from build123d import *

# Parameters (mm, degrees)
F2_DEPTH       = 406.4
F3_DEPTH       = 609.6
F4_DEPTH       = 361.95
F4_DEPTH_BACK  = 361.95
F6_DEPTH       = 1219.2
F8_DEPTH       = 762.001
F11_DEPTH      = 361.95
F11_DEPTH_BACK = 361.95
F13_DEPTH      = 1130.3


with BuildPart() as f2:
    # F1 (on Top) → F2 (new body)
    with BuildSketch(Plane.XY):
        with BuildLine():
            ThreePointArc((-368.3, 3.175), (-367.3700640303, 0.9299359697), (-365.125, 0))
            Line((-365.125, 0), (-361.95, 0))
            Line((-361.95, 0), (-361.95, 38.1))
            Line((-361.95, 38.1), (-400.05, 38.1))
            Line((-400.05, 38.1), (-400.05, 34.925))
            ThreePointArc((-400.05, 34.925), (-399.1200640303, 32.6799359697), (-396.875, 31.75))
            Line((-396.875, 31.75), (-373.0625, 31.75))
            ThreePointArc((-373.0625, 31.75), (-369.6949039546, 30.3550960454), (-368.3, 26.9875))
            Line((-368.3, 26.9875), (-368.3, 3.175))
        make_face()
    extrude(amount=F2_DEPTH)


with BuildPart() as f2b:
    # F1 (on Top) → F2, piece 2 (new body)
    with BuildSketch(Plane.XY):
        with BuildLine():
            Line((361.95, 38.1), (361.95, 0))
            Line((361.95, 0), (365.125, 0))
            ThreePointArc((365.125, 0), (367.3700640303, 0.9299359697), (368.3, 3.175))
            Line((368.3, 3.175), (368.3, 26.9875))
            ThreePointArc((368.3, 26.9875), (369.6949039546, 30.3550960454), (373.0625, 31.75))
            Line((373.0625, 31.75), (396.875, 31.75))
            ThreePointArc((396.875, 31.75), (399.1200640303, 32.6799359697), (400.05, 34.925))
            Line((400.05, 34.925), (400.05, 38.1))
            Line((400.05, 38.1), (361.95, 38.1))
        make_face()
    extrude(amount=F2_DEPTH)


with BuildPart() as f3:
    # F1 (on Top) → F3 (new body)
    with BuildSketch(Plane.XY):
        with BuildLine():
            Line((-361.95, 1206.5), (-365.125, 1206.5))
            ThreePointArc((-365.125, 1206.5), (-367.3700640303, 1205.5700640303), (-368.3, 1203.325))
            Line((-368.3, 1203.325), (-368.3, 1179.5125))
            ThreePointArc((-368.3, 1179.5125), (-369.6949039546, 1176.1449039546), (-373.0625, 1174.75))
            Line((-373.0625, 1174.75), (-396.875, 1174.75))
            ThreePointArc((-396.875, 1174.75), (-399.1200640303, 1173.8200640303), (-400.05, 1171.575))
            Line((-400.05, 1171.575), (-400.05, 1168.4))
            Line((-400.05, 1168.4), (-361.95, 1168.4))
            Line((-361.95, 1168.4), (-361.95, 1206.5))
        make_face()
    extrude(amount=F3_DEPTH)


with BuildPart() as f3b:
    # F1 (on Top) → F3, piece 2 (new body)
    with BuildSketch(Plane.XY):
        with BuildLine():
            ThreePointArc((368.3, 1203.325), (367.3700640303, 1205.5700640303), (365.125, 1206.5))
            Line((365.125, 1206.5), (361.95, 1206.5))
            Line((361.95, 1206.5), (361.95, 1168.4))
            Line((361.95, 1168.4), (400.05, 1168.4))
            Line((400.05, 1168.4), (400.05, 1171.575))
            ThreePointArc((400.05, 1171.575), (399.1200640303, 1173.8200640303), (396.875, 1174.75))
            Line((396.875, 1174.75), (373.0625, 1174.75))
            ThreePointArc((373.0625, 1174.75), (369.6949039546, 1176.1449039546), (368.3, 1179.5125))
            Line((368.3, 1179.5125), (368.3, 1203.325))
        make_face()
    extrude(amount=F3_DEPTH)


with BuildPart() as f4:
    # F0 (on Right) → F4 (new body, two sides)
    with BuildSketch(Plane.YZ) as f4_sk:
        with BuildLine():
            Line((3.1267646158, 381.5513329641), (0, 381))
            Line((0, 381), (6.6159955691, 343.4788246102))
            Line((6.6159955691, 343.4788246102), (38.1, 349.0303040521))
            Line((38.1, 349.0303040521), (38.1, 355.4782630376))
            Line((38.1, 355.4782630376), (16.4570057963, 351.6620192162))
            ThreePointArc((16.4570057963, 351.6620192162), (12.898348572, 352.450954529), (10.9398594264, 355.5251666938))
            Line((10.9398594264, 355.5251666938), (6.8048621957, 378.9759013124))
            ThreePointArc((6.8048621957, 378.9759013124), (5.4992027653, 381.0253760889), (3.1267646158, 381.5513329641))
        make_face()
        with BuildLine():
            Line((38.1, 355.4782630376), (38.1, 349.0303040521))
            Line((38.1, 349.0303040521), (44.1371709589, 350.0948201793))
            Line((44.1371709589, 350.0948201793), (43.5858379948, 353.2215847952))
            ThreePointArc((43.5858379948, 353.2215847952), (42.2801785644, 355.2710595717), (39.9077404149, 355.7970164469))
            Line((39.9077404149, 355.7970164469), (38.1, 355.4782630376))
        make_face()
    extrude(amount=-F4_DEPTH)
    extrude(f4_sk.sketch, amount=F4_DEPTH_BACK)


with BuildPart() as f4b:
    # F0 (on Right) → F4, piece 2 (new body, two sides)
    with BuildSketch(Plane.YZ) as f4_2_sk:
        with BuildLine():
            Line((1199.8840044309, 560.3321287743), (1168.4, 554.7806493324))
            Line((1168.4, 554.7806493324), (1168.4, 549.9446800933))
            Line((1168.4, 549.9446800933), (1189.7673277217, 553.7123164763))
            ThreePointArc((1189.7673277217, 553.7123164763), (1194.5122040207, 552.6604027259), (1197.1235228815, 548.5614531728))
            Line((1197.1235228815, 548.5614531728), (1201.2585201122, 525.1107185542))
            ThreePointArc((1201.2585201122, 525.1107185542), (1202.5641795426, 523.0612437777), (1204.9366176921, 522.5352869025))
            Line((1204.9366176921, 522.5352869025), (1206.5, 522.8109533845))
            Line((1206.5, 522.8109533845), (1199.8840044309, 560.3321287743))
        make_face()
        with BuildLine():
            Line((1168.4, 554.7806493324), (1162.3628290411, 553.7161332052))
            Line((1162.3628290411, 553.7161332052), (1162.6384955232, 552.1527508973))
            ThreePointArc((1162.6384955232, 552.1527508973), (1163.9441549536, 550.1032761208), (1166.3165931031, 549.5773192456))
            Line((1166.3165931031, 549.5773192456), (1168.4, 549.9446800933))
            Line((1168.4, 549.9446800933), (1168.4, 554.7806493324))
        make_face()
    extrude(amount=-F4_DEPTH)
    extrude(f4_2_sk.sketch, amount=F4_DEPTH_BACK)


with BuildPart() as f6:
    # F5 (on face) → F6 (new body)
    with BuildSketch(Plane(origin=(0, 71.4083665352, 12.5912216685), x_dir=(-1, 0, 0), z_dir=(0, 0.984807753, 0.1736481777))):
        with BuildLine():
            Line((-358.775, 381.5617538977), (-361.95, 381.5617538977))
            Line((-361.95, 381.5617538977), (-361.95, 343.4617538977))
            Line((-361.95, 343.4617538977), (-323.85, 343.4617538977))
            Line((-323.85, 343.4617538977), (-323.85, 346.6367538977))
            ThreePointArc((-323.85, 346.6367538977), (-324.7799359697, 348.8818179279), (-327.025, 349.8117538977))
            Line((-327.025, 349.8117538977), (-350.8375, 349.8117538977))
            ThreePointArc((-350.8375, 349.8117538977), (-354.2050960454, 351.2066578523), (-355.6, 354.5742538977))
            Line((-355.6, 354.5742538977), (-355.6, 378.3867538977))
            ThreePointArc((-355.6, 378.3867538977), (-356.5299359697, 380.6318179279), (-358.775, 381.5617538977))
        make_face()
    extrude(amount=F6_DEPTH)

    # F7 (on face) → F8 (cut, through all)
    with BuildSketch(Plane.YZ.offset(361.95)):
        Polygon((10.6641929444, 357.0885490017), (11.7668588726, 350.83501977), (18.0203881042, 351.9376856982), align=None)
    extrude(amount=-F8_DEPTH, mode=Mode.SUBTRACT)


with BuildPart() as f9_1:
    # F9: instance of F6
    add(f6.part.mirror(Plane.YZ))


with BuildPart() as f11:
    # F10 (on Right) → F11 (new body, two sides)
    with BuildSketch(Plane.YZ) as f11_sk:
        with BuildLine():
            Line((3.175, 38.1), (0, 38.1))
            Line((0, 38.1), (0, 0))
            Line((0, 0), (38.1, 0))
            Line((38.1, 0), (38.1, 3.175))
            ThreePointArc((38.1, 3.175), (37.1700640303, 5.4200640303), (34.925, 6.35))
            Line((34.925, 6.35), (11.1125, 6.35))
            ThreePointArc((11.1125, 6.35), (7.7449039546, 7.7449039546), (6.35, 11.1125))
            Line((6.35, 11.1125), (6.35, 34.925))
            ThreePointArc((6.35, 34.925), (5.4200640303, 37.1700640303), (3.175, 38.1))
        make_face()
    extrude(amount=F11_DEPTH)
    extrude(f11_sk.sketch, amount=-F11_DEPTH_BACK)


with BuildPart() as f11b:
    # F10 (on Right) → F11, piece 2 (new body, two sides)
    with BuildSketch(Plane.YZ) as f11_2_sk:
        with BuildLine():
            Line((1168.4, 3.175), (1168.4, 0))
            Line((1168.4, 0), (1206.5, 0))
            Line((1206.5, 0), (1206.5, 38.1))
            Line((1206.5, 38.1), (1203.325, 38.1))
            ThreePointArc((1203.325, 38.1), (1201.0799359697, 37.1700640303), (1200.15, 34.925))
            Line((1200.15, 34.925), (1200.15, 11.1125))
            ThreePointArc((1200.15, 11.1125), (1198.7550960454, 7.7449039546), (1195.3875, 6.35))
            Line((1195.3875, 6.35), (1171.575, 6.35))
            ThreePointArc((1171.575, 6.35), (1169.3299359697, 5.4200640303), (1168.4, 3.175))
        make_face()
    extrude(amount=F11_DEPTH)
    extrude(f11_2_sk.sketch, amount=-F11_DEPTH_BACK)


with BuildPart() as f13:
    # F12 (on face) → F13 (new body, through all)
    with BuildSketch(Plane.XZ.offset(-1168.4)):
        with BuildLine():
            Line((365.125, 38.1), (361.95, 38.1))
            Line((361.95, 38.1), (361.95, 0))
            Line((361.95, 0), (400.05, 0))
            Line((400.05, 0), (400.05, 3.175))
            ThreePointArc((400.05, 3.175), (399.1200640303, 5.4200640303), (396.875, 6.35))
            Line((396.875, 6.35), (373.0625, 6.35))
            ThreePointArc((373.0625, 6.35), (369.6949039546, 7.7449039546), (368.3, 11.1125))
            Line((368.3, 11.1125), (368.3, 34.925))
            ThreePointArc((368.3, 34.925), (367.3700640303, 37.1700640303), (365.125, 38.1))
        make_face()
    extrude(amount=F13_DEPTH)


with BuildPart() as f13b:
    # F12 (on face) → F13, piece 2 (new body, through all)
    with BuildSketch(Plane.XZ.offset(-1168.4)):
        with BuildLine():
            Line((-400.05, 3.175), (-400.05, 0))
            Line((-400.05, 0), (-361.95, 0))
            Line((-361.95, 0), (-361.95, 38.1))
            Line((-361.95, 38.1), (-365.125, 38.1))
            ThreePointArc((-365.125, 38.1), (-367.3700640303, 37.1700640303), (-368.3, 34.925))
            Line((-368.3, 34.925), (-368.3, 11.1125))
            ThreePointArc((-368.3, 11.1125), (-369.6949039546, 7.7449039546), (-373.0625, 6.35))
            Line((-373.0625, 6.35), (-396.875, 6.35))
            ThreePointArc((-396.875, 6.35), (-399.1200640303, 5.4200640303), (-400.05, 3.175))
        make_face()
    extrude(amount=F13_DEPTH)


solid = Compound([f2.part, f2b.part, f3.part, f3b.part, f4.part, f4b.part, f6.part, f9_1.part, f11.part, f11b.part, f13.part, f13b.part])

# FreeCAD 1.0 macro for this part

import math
import FreeCAD as App
import Part
import Sketcher

V = App.Vector
Q = App.Units.Quantity

doc = App.newDocument("Part")
body = doc.addObject("PartDesign::Body", "Body")

# Sketch on XY plane
sketch1 = doc.addObject("Sketcher::SketchObject", "Sketch")
body.addObject(sketch1)
sketch1.AttachmentSupport = (doc.XY_Plane, [""])
sketch1.MapMode = "FlatFace"
sketch1.addGeometry([
    Part.ArcOfCircle(Part.Circle(V(-365.125, 3.175, 0), V(0, 0, 1), 3.175), math.radians(180), math.radians(270)),  # 0
    Part.LineSegment(V(-365.125, 0, 0), V(-361.95, 0, 0)),  # 1
    Part.LineSegment(V(-361.95, 0, 0), V(-361.95, 38.1, 0)),  # 2
    Part.LineSegment(V(-361.95, 38.1, 0), V(-400.05, 38.1, 0)),  # 3
    Part.LineSegment(V(-400.05, 38.1, 0), V(-400.05, 34.925, 0)),  # 4
    Part.ArcOfCircle(Part.Circle(V(-396.875, 34.925, 0), V(0, 0, 1), 3.175), math.radians(180), math.radians(270)),  # 5
    Part.LineSegment(V(-396.875, 31.75, 0), V(-373.0625, 31.75, 0)),  # 6
    Part.ArcOfCircle(Part.Circle(V(-373.0625, 26.9875, 0), V(0, 0, 1), 4.7625), math.radians(0), math.radians(90)),  # 7
    Part.LineSegment(V(-368.3, 26.9875, 0), V(-368.3, 3.175, 0)),  # 8
], False)
sketch1.addConstraint([
    Sketcher.Constraint("Tangent", 0, 2, 1, 1),
    Sketcher.Constraint("Coincident", 1, 2, 2, 1),
    Sketcher.Constraint("Coincident", 2, 2, 3, 1),
    Sketcher.Constraint("Coincident", 3, 2, 4, 1),
    Sketcher.Constraint("Tangent", 4, 2, 5, 1),
    Sketcher.Constraint("Tangent", 5, 2, 6, 1),
    Sketcher.Constraint("Tangent", 6, 2, 7, 2),
    Sketcher.Constraint("Tangent", 7, 1, 8, 1),
    Sketcher.Constraint("Tangent", 8, 2, 0, 1),
    Sketcher.Constraint("Horizontal", 1),
    Sketcher.Constraint("Vertical", 2),
    Sketcher.Constraint("Horizontal", 3),
    Sketcher.Constraint("Vertical", 4),
    Sketcher.Constraint("Horizontal", 6),
    Sketcher.Constraint("Vertical", 8),
    Sketcher.Constraint("Equal", 0, 5),
    Sketcher.Constraint("PointOnObject", 0, 2, -1),
    Sketcher.Constraint("Equal", 3, 2),
    Sketcher.Constraint("Equal", 1, 4),
    Sketcher.Constraint("DistanceX", 3, 2, 3, 1, Q("1.5 in")),
    Sketcher.Constraint("Radius", 0, Q("0.125 in")),
    Sketcher.Constraint("Radius", 7, Q("0.1875 in")),
    Sketcher.Constraint("DistanceX", 7, 1, -1, 1, Q("14.5 in")),
    Sketcher.Constraint("DistanceX", 1, 1, 1, 2, Q("0.125 in")),
])
pad1 = doc.addObject("PartDesign::Pad", "Pad")
body.addObject(pad1)
pad1.Profile = sketch1
pad1.Length = Q("16 in")
body2 = doc.addObject("PartDesign::Body", "Body001")

# Sketch on XY plane
sketch2 = doc.addObject("Sketcher::SketchObject", "Sketch001")
body2.addObject(sketch2)
sketch2.AttachmentSupport = (doc.getObject("XY_Plane001"), [""])
sketch2.MapMode = "FlatFace"
sketch2.addGeometry([
    Part.LineSegment(V(361.95, 38.1, 0), V(361.95, 0, 0)),  # 0
    Part.LineSegment(V(361.95, 0, 0), V(365.125, 0, 0)),  # 1
    Part.ArcOfCircle(Part.Circle(V(365.125, 3.175, 0), V(0, 0, 1), 3.175), math.radians(-90), math.radians(0)),  # 2
    Part.LineSegment(V(368.3, 3.175, 0), V(368.3, 26.9875, 0)),  # 3
    Part.ArcOfCircle(Part.Circle(V(373.0625, 26.9875, 0), V(0, 0, 1), 4.7625), math.radians(90), math.radians(180)),  # 4
    Part.LineSegment(V(373.0625, 31.75, 0), V(396.875, 31.75, 0)),  # 5
    Part.ArcOfCircle(Part.Circle(V(396.875, 34.925, 0), V(0, 0, 1), 3.175), math.radians(-90), math.radians(0)),  # 6
    Part.LineSegment(V(400.05, 34.925, 0), V(400.05, 38.1, 0)),  # 7
    Part.LineSegment(V(400.05, 38.1, 0), V(361.95, 38.1, 0)),  # 8
], False)
sketch2.addConstraint([
    Sketcher.Constraint("Coincident", 0, 2, 1, 1),
    Sketcher.Constraint("Tangent", 1, 2, 2, 1),
    Sketcher.Constraint("Tangent", 2, 2, 3, 1),
    Sketcher.Constraint("Tangent", 3, 2, 4, 2),
    Sketcher.Constraint("Tangent", 4, 1, 5, 1),
    Sketcher.Constraint("Tangent", 5, 2, 6, 1),
    Sketcher.Constraint("Tangent", 6, 2, 7, 1),
    Sketcher.Constraint("Coincident", 7, 2, 8, 1),
    Sketcher.Constraint("Coincident", 8, 2, 0, 1),
    Sketcher.Constraint("Vertical", 0),
    Sketcher.Constraint("Horizontal", 1),
    Sketcher.Constraint("Vertical", 3),
    Sketcher.Constraint("Horizontal", 5),
    Sketcher.Constraint("Vertical", 7),
    Sketcher.Constraint("Horizontal", 8),
    Sketcher.Constraint("Equal", 2, 6),
    Sketcher.Constraint("PointOnObject", 0, 2, -1),
    Sketcher.Constraint("Equal", 8, 0),
    Sketcher.Constraint("Equal", 5, 3),
    Sketcher.Constraint("DistanceX", 8, 2, 8, 1, Q("1.5 in")),
    Sketcher.Constraint("Radius", 2, Q("0.125 in")),
    Sketcher.Constraint("Radius", 4, Q("0.1875 in")),
    Sketcher.Constraint("DistanceX", -1, 1, 2, 2, Q("14.5 in")),
    Sketcher.Constraint("DistanceX", 1, 1, 1, 2, Q("0.125 in")),
])
pad2 = doc.addObject("PartDesign::Pad", "Pad001")
body2.addObject(pad2)
pad2.Profile = sketch2
pad2.Length = Q("16 in")
body3 = doc.addObject("PartDesign::Body", "Body002")

# Sketch on XY plane
sketch3 = doc.addObject("Sketcher::SketchObject", "Sketch002")
body3.addObject(sketch3)
sketch3.AttachmentSupport = (doc.getObject("XY_Plane002"), [""])
sketch3.MapMode = "FlatFace"
sketch3.addGeometry([
    Part.LineSegment(V(-361.95, 1206.5, 0), V(-365.125, 1206.5, 0)),  # 0
    Part.ArcOfCircle(Part.Circle(V(-365.125, 1203.325, 0), V(0, 0, 1), 3.175), math.radians(90), math.radians(180)),  # 1
    Part.LineSegment(V(-368.3, 1203.325, 0), V(-368.3, 1179.5125, 0)),  # 2
    Part.ArcOfCircle(Part.Circle(V(-373.0625, 1179.5125, 0), V(0, 0, 1), 4.7625), math.radians(-90), math.radians(0)),  # 3
    Part.LineSegment(V(-373.0625, 1174.75, 0), V(-396.875, 1174.75, 0)),  # 4
    Part.ArcOfCircle(Part.Circle(V(-396.875, 1171.575, 0), V(0, 0, 1), 3.175), math.radians(90), math.radians(180)),  # 5
    Part.LineSegment(V(-400.05, 1171.575, 0), V(-400.05, 1168.4, 0)),  # 6
    Part.LineSegment(V(-400.05, 1168.4, 0), V(-361.95, 1168.4, 0)),  # 7
    Part.LineSegment(V(-361.95, 1168.4, 0), V(-361.95, 1206.5, 0)),  # 8
], False)
sketch3.addConstraint([
    Sketcher.Constraint("Tangent", 0, 2, 1, 1),
    Sketcher.Constraint("Tangent", 1, 2, 2, 1),
    Sketcher.Constraint("Tangent", 2, 2, 3, 2),
    Sketcher.Constraint("Tangent", 3, 1, 4, 1),
    Sketcher.Constraint("Tangent", 4, 2, 5, 1),
    Sketcher.Constraint("Tangent", 5, 2, 6, 1),
    Sketcher.Constraint("Coincident", 6, 2, 7, 1),
    Sketcher.Constraint("Coincident", 7, 2, 8, 1),
    Sketcher.Constraint("Coincident", 8, 2, 0, 1),
    Sketcher.Constraint("Horizontal", 0),
    Sketcher.Constraint("Vertical", 2),
    Sketcher.Constraint("Horizontal", 4),
    Sketcher.Constraint("Vertical", 6),
    Sketcher.Constraint("Horizontal", 7),
    Sketcher.Constraint("Vertical", 8),
    Sketcher.Constraint("Equal", 1, 5),
    Sketcher.Constraint("Equal", 4, 2),
    Sketcher.Constraint("Equal", 0, 6),
    Sketcher.Constraint("DistanceX", 7, 1, 7, 2, Q("1.5 in")),
    Sketcher.Constraint("DistanceY", -1, 1, 6, 2, Q("46 in")),
    Sketcher.Constraint("Radius", 1, Q("0.125 in")),
    Sketcher.Constraint("Radius", 3, Q("0.1875 in")),
    Sketcher.Constraint("DistanceX", 1, 2, -1, 1, Q("14.5 in")),
    Sketcher.Constraint("DistanceX", 0, 2, 0, 1, Q("0.125 in")),
])
pad3 = doc.addObject("PartDesign::Pad", "Pad002")
body3.addObject(pad3)
pad3.Profile = sketch3
pad3.Length = Q("24 in")
body4 = doc.addObject("PartDesign::Body", "Body003")

# Sketch on XY plane
sketch4 = doc.addObject("Sketcher::SketchObject", "Sketch003")
body4.addObject(sketch4)
sketch4.AttachmentSupport = (doc.getObject("XY_Plane003"), [""])
sketch4.MapMode = "FlatFace"
sketch4.addGeometry([
    Part.ArcOfCircle(Part.Circle(V(365.125, 1203.325, 0), V(0, 0, 1), 3.175), math.radians(0), math.radians(90)),  # 0
    Part.LineSegment(V(365.125, 1206.5, 0), V(361.95, 1206.5, 0)),  # 1
    Part.LineSegment(V(361.95, 1206.5, 0), V(361.95, 1168.4, 0)),  # 2
    Part.LineSegment(V(361.95, 1168.4, 0), V(400.05, 1168.4, 0)),  # 3
    Part.LineSegment(V(400.05, 1168.4, 0), V(400.05, 1171.575, 0)),  # 4
    Part.ArcOfCircle(Part.Circle(V(396.875, 1171.575, 0), V(0, 0, 1), 3.175), math.radians(0), math.radians(90)),  # 5
    Part.LineSegment(V(396.875, 1174.75, 0), V(373.0625, 1174.75, 0)),  # 6
    Part.ArcOfCircle(Part.Circle(V(373.0625, 1179.5125, 0), V(0, 0, 1), 4.7625), math.radians(180), math.radians(270)),  # 7
    Part.LineSegment(V(368.3, 1179.5125, 0), V(368.3, 1203.325, 0)),  # 8
], False)
sketch4.addConstraint([
    Sketcher.Constraint("Tangent", 0, 2, 1, 1),
    Sketcher.Constraint("Coincident", 1, 2, 2, 1),
    Sketcher.Constraint("Coincident", 2, 2, 3, 1),
    Sketcher.Constraint("Coincident", 3, 2, 4, 1),
    Sketcher.Constraint("Tangent", 4, 2, 5, 1),
    Sketcher.Constraint("Tangent", 5, 2, 6, 1),
    Sketcher.Constraint("Tangent", 6, 2, 7, 2),
    Sketcher.Constraint("Tangent", 7, 1, 8, 1),
    Sketcher.Constraint("Tangent", 8, 2, 0, 1),
    Sketcher.Constraint("Horizontal", 1),
    Sketcher.Constraint("Vertical", 2),
    Sketcher.Constraint("Horizontal", 3),
    Sketcher.Constraint("Vertical", 4),
    Sketcher.Constraint("Horizontal", 6),
    Sketcher.Constraint("Vertical", 8),
    Sketcher.Constraint("Equal", 0, 5),
    Sketcher.Constraint("Equal", 3, 2),
    Sketcher.Constraint("Equal", 1, 4),
    Sketcher.Constraint("DistanceX", 3, 1, 3, 2, Q("1.5 in")),
    Sketcher.Constraint("DistanceY", -1, 1, 2, 2, Q("46 in")),
    Sketcher.Constraint("Radius", 0, Q("0.125 in")),
    Sketcher.Constraint("Radius", 7, Q("0.1875 in")),
    Sketcher.Constraint("DistanceX", -1, 1, 7, 1, Q("14.5 in")),
    Sketcher.Constraint("DistanceX", 1, 2, 1, 1, Q("0.125 in")),
])
pad4 = doc.addObject("PartDesign::Pad", "Pad003")
body4.addObject(pad4)
pad4.Profile = sketch4
pad4.Length = Q("24 in")
body5 = doc.addObject("PartDesign::Body", "Body004")

# Sketch on YZ plane
sketch5 = doc.addObject("Sketcher::SketchObject", "Sketch004")
body5.addObject(sketch5)
sketch5.AttachmentSupport = (doc.getObject("YZ_Plane004"), [""])
sketch5.MapMode = "FlatFace"
sketch5.addGeometry([
    Part.LineSegment(V(3.126765, 381.551333, 0), V(0, 381, 0)),  # 0
    Part.LineSegment(V(0, 381, 0), V(6.615996, 343.478825, 0)),  # 1
    Part.LineSegment(V(6.615996, 343.478825, 0), V(44.137171, 350.09482, 0)),  # 2
    Part.LineSegment(V(44.137171, 350.09482, 0), V(43.585838, 353.221585, 0)),  # 3
    Part.ArcOfCircle(Part.Circle(V(40.459073, 352.670252, 0), V(0, 0, 1), 3.175), math.radians(10), math.radians(100)),  # 4
    Part.LineSegment(V(39.90774, 355.797016, 0), V(38.1, 355.478263, 0)),  # 5
    Part.LineSegment(V(38.1, 355.478263, 0), V(16.457006, 351.662019, 0)),  # 6
    Part.ArcOfCircle(Part.Circle(V(15.630006, 356.352166, 0), V(0, 0, 1), 4.7625), math.radians(-170), math.radians(-80)),  # 7
    Part.LineSegment(V(10.939859, 355.525167, 0), V(6.804862, 378.975901, 0)),  # 8
    Part.ArcOfCircle(Part.Circle(V(3.678098, 378.424568, 0), V(0, 0, 1), 3.175), math.radians(10), math.radians(100)),  # 9
], False)
sketch5.addConstraint([
    Sketcher.Constraint("Coincident", 0, 2, 1, 1),
    Sketcher.Constraint("Coincident", 1, 2, 2, 1),
    Sketcher.Constraint("Coincident", 2, 2, 3, 1),
    Sketcher.Constraint("Tangent", 3, 2, 4, 1),
    Sketcher.Constraint("Tangent", 4, 2, 5, 1),
    Sketcher.Constraint("Coincident", 5, 2, 6, 1),
    Sketcher.Constraint("Tangent", 6, 2, 7, 2),
    Sketcher.Constraint("Tangent", 7, 1, 8, 1),
    Sketcher.Constraint("Tangent", 8, 2, 9, 1),
    Sketcher.Constraint("Tangent", 9, 2, 0, 1),
    Sketcher.Constraint("Equal", 4, 9),
    Sketcher.Constraint("PointOnObject", 0, 2, -2),
    Sketcher.Constraint("Perpendicular", 0, 1),
    Sketcher.Constraint("Perpendicular", 1, 2),
    Sketcher.Constraint("Perpendicular", 2, 3),
    Sketcher.Constraint("Perpendicular", 3, 5),
    Sketcher.Constraint("Parallel", 5, 6),
    Sketcher.Constraint("Perpendicular", 6, 8),
    Sketcher.Constraint("Equal", 1, 2),
    Sketcher.Constraint("Equal", 0, 3),
    Sketcher.Constraint("DistanceY", -1, 1, 0, 2, Q("15 in")),
    Sketcher.Constraint("Angle", 0, Q("-170 deg")),
    Sketcher.Constraint("Radius", 4, Q("0.125 in")),
    Sketcher.Constraint("Radius", 7, Q("0.1875 in")),
    Sketcher.Constraint("Distance", 1, Q("1.5 in")),
    Sketcher.Constraint("DistanceX", -1, 1, 5, 2, Q("1.5 in")),
    Sketcher.Constraint("Distance", 0, Q("0.125 in")),
])
pad5 = doc.addObject("PartDesign::Pad", "Pad004")
body5.addObject(pad5)
pad5.Profile = sketch5
pad5.Type = "TwoLengths"
pad5.Length = Q("14.25 in")
pad5.Length2 = Q("14.25 in")
pad5.Reversed = True
body6 = doc.addObject("PartDesign::Body", "Body005")

# Sketch on YZ plane
sketch6 = doc.addObject("Sketcher::SketchObject", "Sketch005")
body6.addObject(sketch6)
sketch6.AttachmentSupport = (doc.getObject("YZ_Plane005"), [""])
sketch6.MapMode = "FlatFace"
sketch6.addGeometry([
    Part.LineSegment(V(1199.884004, 560.332129, 0), V(1162.362829, 553.716133, 0)),  # 0
    Part.LineSegment(V(1162.362829, 553.716133, 0), V(1162.638496, 552.152751, 0)),  # 1
    Part.ArcOfCircle(Part.Circle(V(1165.76526, 552.704084, 0), V(0, 0, 1), 3.175), math.radians(-170), math.radians(-80)),  # 2
    Part.LineSegment(V(1166.316593, 549.577319, 0), V(1168.4, 549.94468, 0)),  # 3
    Part.LineSegment(V(1168.4, 549.94468, 0), V(1189.767328, 553.712316, 0)),  # 4
    Part.ArcOfCircle(Part.Circle(V(1190.869994, 547.458787, 0), V(0, 0, 1), 6.35), math.radians(10), math.radians(100)),  # 5
    Part.LineSegment(V(1197.123523, 548.561453, 0), V(1201.25852, 525.110719, 0)),  # 6
    Part.ArcOfCircle(Part.Circle(V(1204.385285, 525.662052, 0), V(0, 0, 1), 3.175), math.radians(-170), math.radians(-80)),  # 7
    Part.LineSegment(V(1204.936618, 522.535287, 0), V(1206.5, 522.810953, 0)),  # 8
    Part.LineSegment(V(1206.5, 522.810953, 0), V(1199.884004, 560.332129, 0)),  # 9
], False)
sketch6.addConstraint([
    Sketcher.Constraint("Coincident", 0, 2, 1, 1),
    Sketcher.Constraint("Tangent", 1, 2, 2, 1),
    Sketcher.Constraint("Tangent", 2, 2, 3, 1),
    Sketcher.Constraint("Coincident", 3, 2, 4, 1),
    Sketcher.Constraint("Tangent", 4, 2, 5, 2),
    Sketcher.Constraint("Tangent", 5, 1, 6, 1),
    Sketcher.Constraint("Tangent", 6, 2, 7, 1),
    Sketcher.Constraint("Tangent", 7, 2, 8, 1),
    Sketcher.Constraint("Coincident", 8, 2, 9, 1),
    Sketcher.Constraint("Coincident", 9, 2, 0, 1),
    Sketcher.Constraint("Equal", 2, 7),
    Sketcher.Constraint("Perpendicular", 0, 1),
    Sketcher.Constraint("Perpendicular", 1, 3),
    Sketcher.Constraint("Parallel", 3, 4),
    Sketcher.Constraint("Perpendicular", 4, 6),
    Sketcher.Constraint("Perpendicular", 6, 8),
    Sketcher.Constraint("Perpendicular", 8, 9),
    Sketcher.Constraint("Equal", 1, 8),
    Sketcher.Constraint("Equal", 0, 9),
    Sketcher.Constraint("Radius", 5, Q("0.25 in")),
    Sketcher.Constraint("DistanceX", -1, 1, 3, 2, Q("46 in")),
    Sketcher.Constraint("Angle", 0, Q("-170 deg")),
    Sketcher.Constraint("Radius", 2, Q("0.125 in")),
    Sketcher.Constraint("Distance", 0, Q("1.5 in")),
    Sketcher.Constraint("DistanceX", -1, 1, 8, 2, Q("47.5 in")),
    Sketcher.Constraint("Distance", 1, Q("0.0625 in")),
    Sketcher.Constraint("DistanceY", -1, 1, 7, 3, 525.662052),
])
pad6 = doc.addObject("PartDesign::Pad", "Pad005")
body6.addObject(pad6)
pad6.Profile = sketch6
pad6.Type = "TwoLengths"
pad6.Length = Q("14.25 in")
pad6.Length2 = Q("14.25 in")
pad6.Reversed = True
body7 = doc.addObject("PartDesign::Body", "Body006")

# Sketch on an angled plane
sketch7 = doc.addObject("Sketcher::SketchObject", "Sketch006")
body7.addObject(sketch7)
sketch7.Placement = App.Placement(V(0, 71.408367, 12.591222), App.Rotation(V(-1, 0, 0), V(0, -0.173648178, 0.984807753), V(0, 0.984807753, 0.173648178), "ZXY"))
sketch7.addGeometry([
    Part.LineSegment(V(-358.775, 381.561754, 0), V(-361.95, 381.561754, 0)),  # 0
    Part.LineSegment(V(-361.95, 381.561754, 0), V(-361.95, 343.461754, 0)),  # 1
    Part.LineSegment(V(-361.95, 343.461754, 0), V(-323.85, 343.461754, 0)),  # 2
    Part.LineSegment(V(-323.85, 343.461754, 0), V(-323.85, 346.636754, 0)),  # 3
    Part.ArcOfCircle(Part.Circle(V(-327.025, 346.636754, 0), V(0, 0, 1), 3.175), math.radians(0), math.radians(90)),  # 4
    Part.LineSegment(V(-327.025, 349.811754, 0), V(-350.8375, 349.811754, 0)),  # 5
    Part.ArcOfCircle(Part.Circle(V(-350.8375, 354.574254, 0), V(0, 0, 1), 4.7625), math.radians(180), math.radians(270)),  # 6
    Part.LineSegment(V(-355.6, 354.574254, 0), V(-355.6, 378.386754, 0)),  # 7
    Part.ArcOfCircle(Part.Circle(V(-358.775, 378.386754, 0), V(0, 0, 1), 3.175), math.radians(0), math.radians(90)),  # 8
], False)
sketch7.addConstraint([
    Sketcher.Constraint("Coincident", 0, 2, 1, 1),
    Sketcher.Constraint("Coincident", 1, 2, 2, 1),
    Sketcher.Constraint("Coincident", 2, 2, 3, 1),
    Sketcher.Constraint("Tangent", 3, 2, 4, 1),
    Sketcher.Constraint("Tangent", 4, 2, 5, 1),
    Sketcher.Constraint("Tangent", 5, 2, 6, 2),
    Sketcher.Constraint("Tangent", 6, 1, 7, 1),
    Sketcher.Constraint("Tangent", 7, 2, 8, 1),
    Sketcher.Constraint("Tangent", 8, 2, 0, 1),
    Sketcher.Constraint("Horizontal", 0),
    Sketcher.Constraint("Vertical", 1),
    Sketcher.Constraint("Horizontal", 2),
    Sketcher.Constraint("Vertical", 3),
    Sketcher.Constraint("Horizontal", 5),
    Sketcher.Constraint("Vertical", 7),
    Sketcher.Constraint("Equal", 4, 8),
    Sketcher.Constraint("Equal", 2, 1),
    Sketcher.Constraint("Equal", 0, 3),
    Sketcher.Constraint("DistanceX", 2, 1, 2, 2, Q("1.5 in")),
    Sketcher.Constraint("DistanceX", 6, 1, -1, 1, Q("14 in")),
    Sketcher.Constraint("Radius", 4, Q("0.125 in")),
    Sketcher.Constraint("Radius", 6, Q("0.1875 in")),
    Sketcher.Constraint("DistanceX", 0, 2, 0, 1, Q("0.125 in")),
    Sketcher.Constraint("DistanceY", -1, 1, 4, 3, 346.636754),
])
pad7 = doc.addObject("PartDesign::Pad", "Pad006")
body7.addObject(pad7)
pad7.Profile = sketch7
pad7.Length = Q("48 in")

# Sketch on YZ plane
sketch8 = doc.addObject("Sketcher::SketchObject", "Sketch007")
body7.addObject(sketch8)
sketch8.AttachmentSupport = (doc.getObject("YZ_Plane006"), [""])
sketch8.MapMode = "FlatFace"
sketch8.AttachmentOffset = App.Placement(V(0, 0, 14.25 * 25.4), App.Rotation())
sketch8.addGeometry([
    Part.LineSegment(V(10.664193, 357.088549, 0), V(11.766859, 350.83502, 0)),
    Part.LineSegment(V(11.766859, 350.83502, 0), V(18.020388, 351.937686, 0)),
    Part.LineSegment(V(18.020388, 351.937686, 0), V(10.664193, 357.088549, 0)),
], False)
sketch8.addConstraint([
    Sketcher.Constraint("Coincident", 0, 2, 1, 1),
    Sketcher.Constraint("Coincident", 1, 2, 2, 1),
    Sketcher.Constraint("Coincident", 2, 2, 0, 1),
    Sketcher.Constraint("Perpendicular", 0, 1),
    Sketcher.Constraint("Equal", 0, 1),
    Sketcher.Constraint("Angle", 0, Q("-80 deg")),
    Sketcher.Constraint("Distance", 0, Q("0.25 in")),
    Sketcher.Constraint("DistanceX", -1, 1, 0, 2, 11.766859),
    Sketcher.Constraint("DistanceY", -1, 1, 0, 2, 350.83502),
])
pocket1 = doc.addObject("PartDesign::Pocket", "Pocket")
body7.addObject(pocket1)
pocket1.Profile = sketch8
pocket1.Type = "ThroughAll"
body8 = doc.addObject("PartDesign::Body", "Body007")
doc.recompute()

mirroring = doc.addObject("Part::Mirroring", "Mirroring")
mirroring.Source = body7
mirroring.Base = V(0, 0, 0)
mirroring.Normal = V(1, 0, 0)
body8.BaseFeature = mirroring
doc.recompute()
body9 = doc.addObject("PartDesign::Body", "Body008")

# Sketch on YZ plane
sketch9 = doc.addObject("Sketcher::SketchObject", "Sketch008")
body9.addObject(sketch9)
sketch9.AttachmentSupport = (doc.getObject("YZ_Plane008"), [""])
sketch9.MapMode = "FlatFace"
sketch9.addGeometry([
    Part.LineSegment(V(3.175, 38.1, 0), V(0, 38.1, 0)),  # 0
    Part.LineSegment(V(0, 38.1, 0), V(0, 0, 0)),  # 1
    Part.LineSegment(V(0, 0, 0), V(38.1, 0, 0)),  # 2
    Part.LineSegment(V(38.1, 0, 0), V(38.1, 3.175, 0)),  # 3
    Part.ArcOfCircle(Part.Circle(V(34.925, 3.175, 0), V(0, 0, 1), 3.175), math.radians(0), math.radians(90)),  # 4
    Part.LineSegment(V(34.925, 6.35, 0), V(11.1125, 6.35, 0)),  # 5
    Part.ArcOfCircle(Part.Circle(V(11.1125, 11.1125, 0), V(0, 0, 1), 4.7625), math.radians(180), math.radians(270)),  # 6
    Part.LineSegment(V(6.35, 11.1125, 0), V(6.35, 34.925, 0)),  # 7
    Part.ArcOfCircle(Part.Circle(V(3.175, 34.925, 0), V(0, 0, 1), 3.175), math.radians(0), math.radians(90)),  # 8
], False)
sketch9.addConstraint([
    Sketcher.Constraint("Coincident", 0, 2, 1, 1),
    Sketcher.Constraint("Coincident", 1, 2, 2, 1),
    Sketcher.Constraint("Coincident", 2, 2, 3, 1),
    Sketcher.Constraint("Tangent", 3, 2, 4, 1),
    Sketcher.Constraint("Tangent", 4, 2, 5, 1),
    Sketcher.Constraint("Tangent", 5, 2, 6, 2),
    Sketcher.Constraint("Tangent", 6, 1, 7, 1),
    Sketcher.Constraint("Tangent", 7, 2, 8, 1),
    Sketcher.Constraint("Tangent", 8, 2, 0, 1),
    Sketcher.Constraint("Horizontal", 0),
    Sketcher.Constraint("Vertical", 1),
    Sketcher.Constraint("Horizontal", 2),
    Sketcher.Constraint("Vertical", 3),
    Sketcher.Constraint("Horizontal", 5),
    Sketcher.Constraint("Vertical", 7),
    Sketcher.Constraint("Coincident", 1, 2, -1, 1),
    Sketcher.Constraint("Equal", 4, 8),
    Sketcher.Constraint("Equal", 2, 1),
    Sketcher.Constraint("Equal", 0, 3),
    Sketcher.Constraint("DistanceX", 2, 1, 2, 2, Q("1.5 in")),
    Sketcher.Constraint("Radius", 4, Q("0.125 in")),
    Sketcher.Constraint("Radius", 6, Q("0.1875 in")),
    Sketcher.Constraint("DistanceX", 0, 2, 0, 1, Q("0.125 in")),
])
pad8 = doc.addObject("PartDesign::Pad", "Pad007")
body9.addObject(pad8)
pad8.Profile = sketch9
pad8.Type = "TwoLengths"
pad8.Length = Q("14.25 in")
pad8.Length2 = Q("14.25 in")
body10 = doc.addObject("PartDesign::Body", "Body009")

# Sketch on YZ plane
sketch10 = doc.addObject("Sketcher::SketchObject", "Sketch009")
body10.addObject(sketch10)
sketch10.AttachmentSupport = (doc.getObject("YZ_Plane009"), [""])
sketch10.MapMode = "FlatFace"
sketch10.addGeometry([
    Part.LineSegment(V(1168.4, 3.175, 0), V(1168.4, 0, 0)),  # 0
    Part.LineSegment(V(1168.4, 0, 0), V(1206.5, 0, 0)),  # 1
    Part.LineSegment(V(1206.5, 0, 0), V(1206.5, 38.1, 0)),  # 2
    Part.LineSegment(V(1206.5, 38.1, 0), V(1203.325, 38.1, 0)),  # 3
    Part.ArcOfCircle(Part.Circle(V(1203.325, 34.925, 0), V(0, 0, 1), 3.175), math.radians(90), math.radians(180)),  # 4
    Part.LineSegment(V(1200.15, 34.925, 0), V(1200.15, 11.1125, 0)),  # 5
    Part.ArcOfCircle(Part.Circle(V(1195.3875, 11.1125, 0), V(0, 0, 1), 4.7625), math.radians(-90), math.radians(0)),  # 6
    Part.LineSegment(V(1195.3875, 6.35, 0), V(1171.575, 6.35, 0)),  # 7
    Part.ArcOfCircle(Part.Circle(V(1171.575, 3.175, 0), V(0, 0, 1), 3.175), math.radians(90), math.radians(180)),  # 8
], False)
sketch10.addConstraint([
    Sketcher.Constraint("Coincident", 0, 2, 1, 1),
    Sketcher.Constraint("Coincident", 1, 2, 2, 1),
    Sketcher.Constraint("Coincident", 2, 2, 3, 1),
    Sketcher.Constraint("Tangent", 3, 2, 4, 1),
    Sketcher.Constraint("Tangent", 4, 2, 5, 1),
    Sketcher.Constraint("Tangent", 5, 2, 6, 2),
    Sketcher.Constraint("Tangent", 6, 1, 7, 1),
    Sketcher.Constraint("Tangent", 7, 2, 8, 1),
    Sketcher.Constraint("Tangent", 8, 2, 0, 1),
    Sketcher.Constraint("Vertical", 0),
    Sketcher.Constraint("Horizontal", 1),
    Sketcher.Constraint("Vertical", 2),
    Sketcher.Constraint("Horizontal", 3),
    Sketcher.Constraint("Vertical", 5),
    Sketcher.Constraint("Horizontal", 7),
    Sketcher.Constraint("Equal", 4, 8),
    Sketcher.Constraint("PointOnObject", 0, 2, -1),
    Sketcher.Constraint("Equal", 3, 0),
    Sketcher.Constraint("Equal", 1, 2),
    Sketcher.Constraint("DistanceX", 1, 1, 1, 2, Q("1.5 in")),
    Sketcher.Constraint("DistanceX", -1, 1, 0, 2, Q("46 in")),
    Sketcher.Constraint("Radius", 4, Q("0.125 in")),
    Sketcher.Constraint("Radius", 6, Q("0.1875 in")),
    Sketcher.Constraint("DistanceX", 3, 2, 3, 1, Q("0.125 in")),
])
pad9 = doc.addObject("PartDesign::Pad", "Pad008")
body10.addObject(pad9)
pad9.Profile = sketch10
pad9.Type = "TwoLengths"
pad9.Length = Q("14.25 in")
pad9.Length2 = Q("14.25 in")
body11 = doc.addObject("PartDesign::Body", "Body010")

# Sketch on XZ plane
sketch11 = doc.addObject("Sketcher::SketchObject", "Sketch010")
body11.addObject(sketch11)
sketch11.AttachmentSupport = (doc.getObject("XZ_Plane010"), [""])
sketch11.MapMode = "FlatFace"
sketch11.AttachmentOffset = App.Placement(V(0, 0, -46 * 25.4), App.Rotation())
sketch11.addGeometry([
    Part.LineSegment(V(365.125, 38.1, 0), V(361.95, 38.1, 0)),  # 0
    Part.LineSegment(V(361.95, 38.1, 0), V(361.95, 0, 0)),  # 1
    Part.LineSegment(V(361.95, 0, 0), V(400.05, 0, 0)),  # 2
    Part.LineSegment(V(400.05, 0, 0), V(400.05, 3.175, 0)),  # 3
    Part.ArcOfCircle(Part.Circle(V(396.875, 3.175, 0), V(0, 0, 1), 3.175), math.radians(0), math.radians(90)),  # 4
    Part.LineSegment(V(396.875, 6.35, 0), V(373.0625, 6.35, 0)),  # 5
    Part.ArcOfCircle(Part.Circle(V(373.0625, 11.1125, 0), V(0, 0, 1), 4.7625), math.radians(180), math.radians(270)),  # 6
    Part.LineSegment(V(368.3, 11.1125, 0), V(368.3, 34.925, 0)),  # 7
    Part.ArcOfCircle(Part.Circle(V(365.125, 34.925, 0), V(0, 0, 1), 3.175), math.radians(0), math.radians(90)),  # 8
], False)
sketch11.addConstraint([
    Sketcher.Constraint("Coincident", 0, 2, 1, 1),
    Sketcher.Constraint("Coincident", 1, 2, 2, 1),
    Sketcher.Constraint("Coincident", 2, 2, 3, 1),
    Sketcher.Constraint("Tangent", 3, 2, 4, 1),
    Sketcher.Constraint("Tangent", 4, 2, 5, 1),
    Sketcher.Constraint("Tangent", 5, 2, 6, 2),
    Sketcher.Constraint("Tangent", 6, 1, 7, 1),
    Sketcher.Constraint("Tangent", 7, 2, 8, 1),
    Sketcher.Constraint("Tangent", 8, 2, 0, 1),
    Sketcher.Constraint("Horizontal", 0),
    Sketcher.Constraint("Vertical", 1),
    Sketcher.Constraint("Horizontal", 2),
    Sketcher.Constraint("Vertical", 3),
    Sketcher.Constraint("Horizontal", 5),
    Sketcher.Constraint("Vertical", 7),
    Sketcher.Constraint("Equal", 4, 8),
    Sketcher.Constraint("PointOnObject", 1, 2, -1),
    Sketcher.Constraint("Equal", 2, 1),
    Sketcher.Constraint("Equal", 0, 3),
    Sketcher.Constraint("DistanceX", 2, 1, 2, 2, Q("1.5 in")),
    Sketcher.Constraint("Radius", 4, Q("0.125 in")),
    Sketcher.Constraint("Radius", 6, Q("0.1875 in")),
    Sketcher.Constraint("DistanceX", -1, 1, 6, 1, Q("14.5 in")),
    Sketcher.Constraint("DistanceX", 0, 2, 0, 1, Q("0.125 in")),
])
pad10 = doc.addObject("PartDesign::Pad", "Pad009")
body11.addObject(pad10)
pad10.Profile = sketch11
pad10.Length = Q("44.5 in")
body12 = doc.addObject("PartDesign::Body", "Body011")

# Sketch on XZ plane
sketch12 = doc.addObject("Sketcher::SketchObject", "Sketch011")
body12.addObject(sketch12)
sketch12.AttachmentSupport = (doc.getObject("XZ_Plane011"), [""])
sketch12.MapMode = "FlatFace"
sketch12.AttachmentOffset = App.Placement(V(0, 0, -46 * 25.4), App.Rotation())
sketch12.addGeometry([
    Part.LineSegment(V(-400.05, 3.175, 0), V(-400.05, 0, 0)),  # 0
    Part.LineSegment(V(-400.05, 0, 0), V(-361.95, 0, 0)),  # 1
    Part.LineSegment(V(-361.95, 0, 0), V(-361.95, 38.1, 0)),  # 2
    Part.LineSegment(V(-361.95, 38.1, 0), V(-365.125, 38.1, 0)),  # 3
    Part.ArcOfCircle(Part.Circle(V(-365.125, 34.925, 0), V(0, 0, 1), 3.175), math.radians(90), math.radians(180)),  # 4
    Part.LineSegment(V(-368.3, 34.925, 0), V(-368.3, 11.1125, 0)),  # 5
    Part.ArcOfCircle(Part.Circle(V(-373.0625, 11.1125, 0), V(0, 0, 1), 4.7625), math.radians(-90), math.radians(0)),  # 6
    Part.LineSegment(V(-373.0625, 6.35, 0), V(-396.875, 6.35, 0)),  # 7
    Part.ArcOfCircle(Part.Circle(V(-396.875, 3.175, 0), V(0, 0, 1), 3.175), math.radians(90), math.radians(180)),  # 8
], False)
sketch12.addConstraint([
    Sketcher.Constraint("Coincident", 0, 2, 1, 1),
    Sketcher.Constraint("Coincident", 1, 2, 2, 1),
    Sketcher.Constraint("Coincident", 2, 2, 3, 1),
    Sketcher.Constraint("Tangent", 3, 2, 4, 1),
    Sketcher.Constraint("Tangent", 4, 2, 5, 1),
    Sketcher.Constraint("Tangent", 5, 2, 6, 2),
    Sketcher.Constraint("Tangent", 6, 1, 7, 1),
    Sketcher.Constraint("Tangent", 7, 2, 8, 1),
    Sketcher.Constraint("Tangent", 8, 2, 0, 1),
    Sketcher.Constraint("Vertical", 0),
    Sketcher.Constraint("Horizontal", 1),
    Sketcher.Constraint("Vertical", 2),
    Sketcher.Constraint("Horizontal", 3),
    Sketcher.Constraint("Vertical", 5),
    Sketcher.Constraint("Horizontal", 7),
    Sketcher.Constraint("Equal", 4, 8),
    Sketcher.Constraint("PointOnObject", 0, 2, -1),
    Sketcher.Constraint("Equal", 3, 0),
    Sketcher.Constraint("Equal", 1, 2),
    Sketcher.Constraint("DistanceX", 1, 1, 1, 2, Q("1.5 in")),
    Sketcher.Constraint("Radius", 4, Q("0.125 in")),
    Sketcher.Constraint("Radius", 6, Q("0.1875 in")),
    Sketcher.Constraint("DistanceX", 4, 2, -1, 1, Q("14.5 in")),
    Sketcher.Constraint("DistanceX", 3, 2, 3, 1, Q("0.125 in")),
])
pad11 = doc.addObject("PartDesign::Pad", "Pad010")
body12.addObject(pad11)
pad11.Profile = sketch12
pad11.Length = Q("44.5 in")
mirroring.Visibility = False

doc.recompute()
